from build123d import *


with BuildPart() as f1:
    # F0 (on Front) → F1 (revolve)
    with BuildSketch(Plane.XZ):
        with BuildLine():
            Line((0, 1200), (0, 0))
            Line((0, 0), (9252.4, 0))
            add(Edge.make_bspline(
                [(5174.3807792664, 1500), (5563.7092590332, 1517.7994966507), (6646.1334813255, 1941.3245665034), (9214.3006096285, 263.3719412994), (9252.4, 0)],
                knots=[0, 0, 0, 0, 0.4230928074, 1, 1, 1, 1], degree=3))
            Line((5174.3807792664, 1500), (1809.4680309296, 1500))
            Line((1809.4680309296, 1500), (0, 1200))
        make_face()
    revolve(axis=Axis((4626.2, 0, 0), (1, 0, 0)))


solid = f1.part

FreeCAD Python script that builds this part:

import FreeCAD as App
import Part
import Sketcher
from FreeCAD import Vector
Q = App.Units.Quantity

doc = App.newDocument("Part")
body = doc.addObject("PartDesign::Body", "Body")

# Sketch on XZ plane
sketch1 = doc.addObject("Sketcher::SketchObject", "Sketch")
body.addObject(sketch1)
sketch1.AttachmentSupport = (doc.XZ_Plane, [""])
sketch1.MapMode = "FlatFace"
sketch1.addGeometry(Part.LineSegment(Vector(0, 1200, 0), Vector(0, 0, 0)), False)
sketch1.addGeometry(Part.LineSegment(Vector(0, 0, 0), Vector(9252.4, 0, 0)), False)
sketch1.addGeometry(Part.BSplineCurve([Vector(5174.380779, 1500, 0), Vector(5563.709259, 1517.799497, 0), Vector(6646.133481, 1941.324567, 0), Vector(9214.30061, 263.371941, 0), Vector(9252.4, 0, 0)], [4, 1, 4], [0, 0.423092807, 1], False, 3, [1, 1, 1, 1, 1], False), False)
sketch1.addGeometry(Part.LineSegment(Vector(5174.380779, 1500, 0), Vector(1809.468031, 1500, 0)), False)
sketch1.addGeometry(Part.LineSegment(Vector(1809.468031, 1500, 0), Vector(0, 1200, 0)), False)
sketch1.addConstraint(Sketcher.Constraint("Block", 2))
sketch1.addConstraint(Sketcher.Constraint("Coincident", 0, 2, 1, 1))
sketch1.addConstraint(Sketcher.Constraint("Coincident", 1, 2, 2, 2))
sketch1.addConstraint(Sketcher.Constraint("Coincident", 2, 1, 3, 1))
sketch1.addConstraint(Sketcher.Constraint("Coincident", 3, 2, 4, 1))
sketch1.addConstraint(Sketcher.Constraint("Coincident", 4, 2, 0, 1))
sketch1.addConstraint(Sketcher.Constraint("Vertical", 0))
sketch1.addConstraint(Sketcher.Constraint("Horizontal", 1))
sketch1.addConstraint(Sketcher.Constraint("Horizontal", 3))
sketch1.addConstraint(Sketcher.Constraint("PointOnObject", 4, 2, -2))
sketch1.addConstraint(Sketcher.Constraint("DistanceY", 0, 2, 0, 1, Q("1200 mm")))
sketch1.addConstraint(Sketcher.Constraint("DistanceX", 3, 2, 3, 1, Q("3364.912748 mm")))
revolution = doc.addObject("PartDesign::Revolution", "Revolution")
body.addObject(revolution)
revolution.Profile = sketch1
revolution.ReferenceAxis = (sketch1, ["H_Axis"])
revolution.Angle = 360

doc.recompute()
